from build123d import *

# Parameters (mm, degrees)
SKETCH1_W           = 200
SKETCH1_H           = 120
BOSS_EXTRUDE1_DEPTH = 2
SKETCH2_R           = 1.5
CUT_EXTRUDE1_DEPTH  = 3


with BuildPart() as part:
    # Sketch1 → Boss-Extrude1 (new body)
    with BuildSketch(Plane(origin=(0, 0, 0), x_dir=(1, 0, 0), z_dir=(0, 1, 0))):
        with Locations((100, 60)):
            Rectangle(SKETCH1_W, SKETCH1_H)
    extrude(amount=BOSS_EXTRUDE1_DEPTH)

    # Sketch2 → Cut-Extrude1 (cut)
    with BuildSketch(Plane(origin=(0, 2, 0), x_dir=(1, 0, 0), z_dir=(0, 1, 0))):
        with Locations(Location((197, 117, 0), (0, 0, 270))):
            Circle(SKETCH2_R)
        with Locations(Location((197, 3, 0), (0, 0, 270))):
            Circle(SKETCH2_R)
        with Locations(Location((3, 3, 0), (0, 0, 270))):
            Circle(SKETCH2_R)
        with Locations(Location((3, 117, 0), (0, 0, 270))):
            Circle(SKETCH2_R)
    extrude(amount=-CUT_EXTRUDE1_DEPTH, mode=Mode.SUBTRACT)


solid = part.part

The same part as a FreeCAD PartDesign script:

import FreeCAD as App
import Part
import Sketcher
from FreeCAD import Vector
Q = App.Units.Quantity


def add_polygon(sketch, points):
    """Adds a closed chain of lines whose ends are joined by coincident constraints."""
    first, n = sketch.GeometryCount, len(points)
    for a, b in zip(points, points[1:] + points[:1]):
        sketch.addGeometry(Part.LineSegment(App.Vector(*a, 0), App.Vector(*b, 0)), False)
    for i in range(n):
        sketch.addConstraint(Sketcher.Constraint("Coincident", first + i, 2, first + (i + 1) % n, 1))

doc = App.newDocument("Part")
body = doc.addObject("PartDesign::Body", "Body")

# Sketch on XZ plane
sketch1 = body.newObject("Sketcher::SketchObject", "Sketch")
sketch1.AttachmentSupport = (doc.getObject("XZ_Plane"), [""])
sketch1.MapMode = "FlatFace"
add_polygon(sketch1, [(0, -120), (0, 0), (200, 0), (200, -120)])  # lines 0-3
sketch1.addConstraint([
    Sketcher.Constraint("Vertical", 0),
    Sketcher.Constraint("Horizontal", 1),
    Sketcher.Constraint("Vertical", 2),
    Sketcher.Constraint("Horizontal", 3),
    Sketcher.Constraint("Coincident", 0, 2, -1, 1),
    Sketcher.Constraint("DistanceX", 1, 1, 1, 2, Q("200 mm")),
    Sketcher.Constraint("DistanceY", 0, 1, 0, 2, Q("120 mm")),
])
pad1 = body.newObject("PartDesign::Pad", "Pad")
pad1.Profile = sketch1
pad1.Length = 2
pad1.Reversed = True

# Sketch on XZ plane
sketch2 = body.newObject("Sketcher::SketchObject", "Sketch001")
sketch2.AttachmentSupport = (doc.getObject("XZ_Plane"), [""])
sketch2.MapMode = "FlatFace"
sketch2.AttachmentOffset = App.Placement(Vector(0, 0, -2), App.Rotation())
sketch2.addGeometry([
    Part.Circle(Vector(197, -117, 0), Vector(0, 0, 1), 1.5),
    Part.Circle(Vector(197, -3, 0), Vector(0, 0, 1), 1.5),
    Part.Circle(Vector(3, -3, 0), Vector(0, 0, 1), 1.5),
    Part.Circle(Vector(3, -117, 0), Vector(0, 0, 1), 1.5),
], False)
sketch2.addConstraint([
    Sketcher.Constraint("Equal", 0, 1),
    Sketcher.Constraint("Equal", 1, 2),
    Sketcher.Constraint("Equal", 2, 3),
    Sketcher.Constraint("Horizontal", 1, 3, 2, 3),
    Sketcher.Constraint("Horizontal", 0, 3, 3, 3),
    Sketcher.Constraint("Vertical", 0, 3, 1, 3),
    Sketcher.Constraint("Vertical", 2, 3, 3, 3),
    Sketcher.Constraint("Diameter", 0, Q("3 mm")),
    Sketcher.Constraint("DistanceX", -1, 1, 0, 3, Q("197 mm")),
    Sketcher.Constraint("DistanceY", 0, 3, -1, 1, Q("117 mm")),
    Sketcher.Constraint("DistanceY", 1, 3, -1, 1, Q("3 mm")),
    Sketcher.Constraint("DistanceX", -1, 1, 2, 3, Q("3 mm")),
])
pocket1 = body.newObject("PartDesign::Pocket", "Pocket")
pocket1.Profile = sketch2
pocket1.Length = 3
pocket1.Reversed = True

doc.recompute()
